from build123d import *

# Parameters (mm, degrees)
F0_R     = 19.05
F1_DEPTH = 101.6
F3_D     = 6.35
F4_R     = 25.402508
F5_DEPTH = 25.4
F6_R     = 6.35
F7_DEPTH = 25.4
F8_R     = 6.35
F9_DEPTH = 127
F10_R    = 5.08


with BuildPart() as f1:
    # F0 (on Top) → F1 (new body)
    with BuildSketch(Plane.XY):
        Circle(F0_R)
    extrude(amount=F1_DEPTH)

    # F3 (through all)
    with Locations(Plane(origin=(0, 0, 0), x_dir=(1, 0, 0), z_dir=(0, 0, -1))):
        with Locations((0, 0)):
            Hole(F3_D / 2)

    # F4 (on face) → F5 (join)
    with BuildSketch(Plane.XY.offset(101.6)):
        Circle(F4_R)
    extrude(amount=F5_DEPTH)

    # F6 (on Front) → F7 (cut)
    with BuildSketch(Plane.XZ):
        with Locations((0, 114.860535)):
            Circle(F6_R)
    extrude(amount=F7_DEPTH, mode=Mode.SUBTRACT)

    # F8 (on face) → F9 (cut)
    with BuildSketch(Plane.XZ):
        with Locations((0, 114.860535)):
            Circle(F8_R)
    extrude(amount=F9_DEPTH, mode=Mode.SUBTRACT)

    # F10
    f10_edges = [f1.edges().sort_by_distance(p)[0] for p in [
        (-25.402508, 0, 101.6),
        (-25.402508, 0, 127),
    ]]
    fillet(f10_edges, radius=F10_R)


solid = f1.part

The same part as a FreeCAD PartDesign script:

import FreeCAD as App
import Part
import Sketcher
from FreeCAD import Vector
Q = App.Units.Quantity


def edges_at(feature, points):
    """Names of the edges that pass closest to the given points."""
    edges = feature.Shape.Edges
    near = lambda p: min(range(len(edges)), key=lambda i: edges[i].distToShape(Part.Vertex(*p))[0])
    return sorted({f"Edge{near(p) + 1}" for p in points})

doc = App.newDocument("Part")
body = doc.addObject("PartDesign::Body", "Body")

sketch1 = doc.addObject("Sketcher::SketchObject", "Sketch")
body.addObject(sketch1)
sketch1.AttachmentSupport = (doc.XY_Plane, [""])
sketch1.MapMode = "FlatFace"
sketch1.addGeometry(Part.Circle(Vector(0, 0, 0), Vector(0, 0, 1), 19), False)
sketch1.addConstraint([
    Sketcher.Constraint("Coincident", 0, 3, -1, 1),
    Sketcher.Constraint("Diameter", 0, Q("1.5 in")),
])
pad1 = doc.addObject("PartDesign::Pad", "Pad")
body.addObject(pad1)
pad1.Profile = sketch1
pad1.Length = Q("4 in")

sketch2 = doc.addObject("Sketcher::SketchObject", "Sketch001")
body.addObject(sketch2)
sketch2.AttachmentSupport = (doc.XY_Plane, [""])
sketch2.MapMode = "FlatFace"
sketch2.addGeometry(Part.Circle(Vector(0, 0, 0), Vector(0, 0, 1), 3.2), False)
sketch2.addConstraint([
    Sketcher.Constraint("Coincident", 0, 3, -1, 1),
    Sketcher.Constraint("Diameter", 0, Q("0.25 in")),
])
doc.recompute()
hole = doc.addObject("PartDesign::Hole", "Hole")
body.addObject(hole)
hole.Profile = sketch2
hole.ThreadType = "None"
hole.Diameter = Q("0.25 in")
hole.DepthType = "ThroughAll"
hole.Reversed = True

sketch3 = doc.addObject("Sketcher::SketchObject", "Sketch002")
body.addObject(sketch3)
sketch3.AttachmentSupport = (doc.XY_Plane, [""])
sketch3.MapMode = "FlatFace"
sketch3.AttachmentOffset = App.Placement(Vector(0, 0, 4 * 25.4), App.Rotation())
sketch3.addGeometry(Part.Circle(Vector(0, 0, 0), Vector(0, 0, 1), 25), False)
sketch3.addConstraint([
    Sketcher.Constraint("Coincident", 0, 3, -1, 1),
    Sketcher.Constraint("Diameter", 0, 50.805016),
])
pad2 = doc.addObject("PartDesign::Pad", "Pad001")
body.addObject(pad2)
pad2.Profile = sketch3
pad2.Length = Q("1 in")

sketch4 = doc.addObject("Sketcher::SketchObject", "Sketch003")
body.addObject(sketch4)
sketch4.AttachmentSupport = (doc.XZ_Plane, [""])
sketch4.MapMode = "FlatFace"
sketch4.addGeometry(Part.Circle(Vector(0, 115, 0), Vector(0, 0, 1), 6), False)
sketch4.addConstraint([
    Sketcher.Constraint("PointOnObject", 0, 3, -2),
    Sketcher.Constraint("Diameter", 0, Q("0.5 in")),
    Sketcher.Constraint("DistanceY", -1, 1, 0, 3, 114.860535),
])
pocket1 = doc.addObject("PartDesign::Pocket", "Pocket")
body.addObject(pocket1)
pocket1.Profile = sketch4
pocket1.Length = Q("1 in")
pocket1.Reversed = True

sketch5 = doc.addObject("Sketcher::SketchObject", "Sketch004")
body.addObject(sketch5)
sketch5.AttachmentSupport = (doc.XZ_Plane, [""])
sketch5.MapMode = "FlatFace"
sketch5.addGeometry(Part.Circle(Vector(0, 115, 0), Vector(0, 0, 1), 6), False)
sketch5.addConstraint([
    Sketcher.Constraint("PointOnObject", 0, 3, -2),
    Sketcher.Constraint("Diameter", 0, Q("0.5 in")),
    Sketcher.Constraint("DistanceY", -1, 1, 0, 3, 114.860535),
])
pocket2 = doc.addObject("PartDesign::Pocket", "Pocket001")
body.addObject(pocket2)
pocket2.Profile = sketch5
pocket2.Length = Q("5 in")
pocket2.Reversed = True
doc.recompute()

fillet = doc.addObject("PartDesign::Fillet", "Fillet")
body.addObject(fillet)
fillet.Base = (pocket2, edges_at(pocket2, [(-25.403, 0, 101.6), (-25.403, 0, 127)]))
fillet.Radius = Q("0.2 in")

doc.recompute()
